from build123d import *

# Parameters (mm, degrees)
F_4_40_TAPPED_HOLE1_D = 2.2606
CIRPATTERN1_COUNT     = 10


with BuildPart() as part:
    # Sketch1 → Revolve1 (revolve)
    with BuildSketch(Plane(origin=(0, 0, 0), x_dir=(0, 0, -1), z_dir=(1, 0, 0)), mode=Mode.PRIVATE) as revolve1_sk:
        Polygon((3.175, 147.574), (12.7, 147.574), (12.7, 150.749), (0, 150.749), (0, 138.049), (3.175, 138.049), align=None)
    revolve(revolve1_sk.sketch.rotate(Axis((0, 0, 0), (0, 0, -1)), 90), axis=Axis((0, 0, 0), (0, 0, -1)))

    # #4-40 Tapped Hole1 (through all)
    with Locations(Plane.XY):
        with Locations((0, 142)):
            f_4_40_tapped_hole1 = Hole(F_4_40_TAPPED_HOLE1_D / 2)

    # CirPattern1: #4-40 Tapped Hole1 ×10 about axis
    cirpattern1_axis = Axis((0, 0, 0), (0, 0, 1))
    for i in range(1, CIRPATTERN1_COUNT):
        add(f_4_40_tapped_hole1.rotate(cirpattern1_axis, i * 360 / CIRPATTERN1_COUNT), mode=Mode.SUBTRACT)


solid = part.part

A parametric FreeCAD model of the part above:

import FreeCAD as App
import Part
import Sketcher
Q = App.Units.Quantity


def add_polygon(sketch, points):
    """Adds a closed chain of lines whose ends are joined by coincident constraints."""
    first, n = sketch.GeometryCount, len(points)
    for a, b in zip(points, points[1:] + points[:1]):
        sketch.addGeometry(Part.LineSegment(App.Vector(*a, 0), App.Vector(*b, 0)), False)
    for i in range(n):
        sketch.addConstraint(Sketcher.Constraint("Coincident", first + i, 2, first + (i + 1) % n, 1))

doc = App.newDocument("Part")
body = doc.addObject("PartDesign::Body", "Body")

# Sketch on YZ plane
sketch1 = body.newObject("Sketcher::SketchObject", "Sketch")
sketch1.AttachmentSupport = (doc.getObject("YZ_Plane"), [""])
sketch1.MapMode = "FlatFace"
add_polygon(sketch1, [(147.6, -3.2), (147.6, -12.7), (150.7, -12.7), (150.7, 0), (138, 0), (138, -3.2)])  # lines 0-5
sketch1.addConstraint(Sketcher.Constraint("Vertical", 0))
sketch1.addConstraint(Sketcher.Constraint("Horizontal", 1))
sketch1.addConstraint(Sketcher.Constraint("Vertical", 2))
sketch1.addConstraint(Sketcher.Constraint("Horizontal", 3))
sketch1.addConstraint(Sketcher.Constraint("Vertical", 4))
sketch1.addConstraint(Sketcher.Constraint("Horizontal", 5))
sketch1.addConstraint(Sketcher.Constraint("PointOnObject", 2, 2, -1))
sketch1.addConstraint(Sketcher.Constraint("Equal", 5, 0))
sketch1.addConstraint(Sketcher.Constraint("Equal", 3, 2))
sketch1.addConstraint(Sketcher.Constraint("DistanceX", 3, 2, 3, 1, Q("0.5 in")))
sketch1.addConstraint(Sketcher.Constraint("DistanceX", 1, 1, 1, 2, Q("0.125 in")))
sketch1.addConstraint(Sketcher.Constraint("DistanceX", -1, 1, 0, 2, Q("5.81 in")))
revolution = body.newObject("PartDesign::Revolution", "Revolution")
revolution.Profile = sketch1
revolution.ReferenceAxis = (sketch1, ["V_Axis"])
revolution.Angle = 360

# Sketch on XY plane
sketch2 = body.newObject("Sketcher::SketchObject", "Sketch001")
sketch2.AttachmentSupport = (doc.getObject("XY_Plane"), [""])
sketch2.MapMode = "FlatFace"
sketch2.addGeometry(Part.Circle(App.Vector(0, 142, 0), App.Vector(0, 0, 1), 1.1), False)
sketch2.addConstraint(Sketcher.Constraint("PointOnObject", 0, 3, -2))
sketch2.addConstraint(Sketcher.Constraint("Diameter", 0, Q("0.089 in")))
sketch2.addConstraint(Sketcher.Constraint("DistanceY", -1, 1, 0, 3, 142.0))
doc.recompute()
hole = body.newObject("PartDesign::Hole", "Hole")
hole.Profile = sketch2
hole.ThreadType = "None"
hole.Diameter = Q("0.089 in")
hole.DepthType = "ThroughAll"
doc.recompute()

polarpattern = body.newObject("PartDesign::PolarPattern", "PolarPattern")
polarpattern.Originals = [hole]
polarpattern.Axis = (doc.getObject("Z_Axis"), [""])
polarpattern.Angle = 360
polarpattern.Occurrences = 10
body.Tip = polarpattern

doc.recompute()
